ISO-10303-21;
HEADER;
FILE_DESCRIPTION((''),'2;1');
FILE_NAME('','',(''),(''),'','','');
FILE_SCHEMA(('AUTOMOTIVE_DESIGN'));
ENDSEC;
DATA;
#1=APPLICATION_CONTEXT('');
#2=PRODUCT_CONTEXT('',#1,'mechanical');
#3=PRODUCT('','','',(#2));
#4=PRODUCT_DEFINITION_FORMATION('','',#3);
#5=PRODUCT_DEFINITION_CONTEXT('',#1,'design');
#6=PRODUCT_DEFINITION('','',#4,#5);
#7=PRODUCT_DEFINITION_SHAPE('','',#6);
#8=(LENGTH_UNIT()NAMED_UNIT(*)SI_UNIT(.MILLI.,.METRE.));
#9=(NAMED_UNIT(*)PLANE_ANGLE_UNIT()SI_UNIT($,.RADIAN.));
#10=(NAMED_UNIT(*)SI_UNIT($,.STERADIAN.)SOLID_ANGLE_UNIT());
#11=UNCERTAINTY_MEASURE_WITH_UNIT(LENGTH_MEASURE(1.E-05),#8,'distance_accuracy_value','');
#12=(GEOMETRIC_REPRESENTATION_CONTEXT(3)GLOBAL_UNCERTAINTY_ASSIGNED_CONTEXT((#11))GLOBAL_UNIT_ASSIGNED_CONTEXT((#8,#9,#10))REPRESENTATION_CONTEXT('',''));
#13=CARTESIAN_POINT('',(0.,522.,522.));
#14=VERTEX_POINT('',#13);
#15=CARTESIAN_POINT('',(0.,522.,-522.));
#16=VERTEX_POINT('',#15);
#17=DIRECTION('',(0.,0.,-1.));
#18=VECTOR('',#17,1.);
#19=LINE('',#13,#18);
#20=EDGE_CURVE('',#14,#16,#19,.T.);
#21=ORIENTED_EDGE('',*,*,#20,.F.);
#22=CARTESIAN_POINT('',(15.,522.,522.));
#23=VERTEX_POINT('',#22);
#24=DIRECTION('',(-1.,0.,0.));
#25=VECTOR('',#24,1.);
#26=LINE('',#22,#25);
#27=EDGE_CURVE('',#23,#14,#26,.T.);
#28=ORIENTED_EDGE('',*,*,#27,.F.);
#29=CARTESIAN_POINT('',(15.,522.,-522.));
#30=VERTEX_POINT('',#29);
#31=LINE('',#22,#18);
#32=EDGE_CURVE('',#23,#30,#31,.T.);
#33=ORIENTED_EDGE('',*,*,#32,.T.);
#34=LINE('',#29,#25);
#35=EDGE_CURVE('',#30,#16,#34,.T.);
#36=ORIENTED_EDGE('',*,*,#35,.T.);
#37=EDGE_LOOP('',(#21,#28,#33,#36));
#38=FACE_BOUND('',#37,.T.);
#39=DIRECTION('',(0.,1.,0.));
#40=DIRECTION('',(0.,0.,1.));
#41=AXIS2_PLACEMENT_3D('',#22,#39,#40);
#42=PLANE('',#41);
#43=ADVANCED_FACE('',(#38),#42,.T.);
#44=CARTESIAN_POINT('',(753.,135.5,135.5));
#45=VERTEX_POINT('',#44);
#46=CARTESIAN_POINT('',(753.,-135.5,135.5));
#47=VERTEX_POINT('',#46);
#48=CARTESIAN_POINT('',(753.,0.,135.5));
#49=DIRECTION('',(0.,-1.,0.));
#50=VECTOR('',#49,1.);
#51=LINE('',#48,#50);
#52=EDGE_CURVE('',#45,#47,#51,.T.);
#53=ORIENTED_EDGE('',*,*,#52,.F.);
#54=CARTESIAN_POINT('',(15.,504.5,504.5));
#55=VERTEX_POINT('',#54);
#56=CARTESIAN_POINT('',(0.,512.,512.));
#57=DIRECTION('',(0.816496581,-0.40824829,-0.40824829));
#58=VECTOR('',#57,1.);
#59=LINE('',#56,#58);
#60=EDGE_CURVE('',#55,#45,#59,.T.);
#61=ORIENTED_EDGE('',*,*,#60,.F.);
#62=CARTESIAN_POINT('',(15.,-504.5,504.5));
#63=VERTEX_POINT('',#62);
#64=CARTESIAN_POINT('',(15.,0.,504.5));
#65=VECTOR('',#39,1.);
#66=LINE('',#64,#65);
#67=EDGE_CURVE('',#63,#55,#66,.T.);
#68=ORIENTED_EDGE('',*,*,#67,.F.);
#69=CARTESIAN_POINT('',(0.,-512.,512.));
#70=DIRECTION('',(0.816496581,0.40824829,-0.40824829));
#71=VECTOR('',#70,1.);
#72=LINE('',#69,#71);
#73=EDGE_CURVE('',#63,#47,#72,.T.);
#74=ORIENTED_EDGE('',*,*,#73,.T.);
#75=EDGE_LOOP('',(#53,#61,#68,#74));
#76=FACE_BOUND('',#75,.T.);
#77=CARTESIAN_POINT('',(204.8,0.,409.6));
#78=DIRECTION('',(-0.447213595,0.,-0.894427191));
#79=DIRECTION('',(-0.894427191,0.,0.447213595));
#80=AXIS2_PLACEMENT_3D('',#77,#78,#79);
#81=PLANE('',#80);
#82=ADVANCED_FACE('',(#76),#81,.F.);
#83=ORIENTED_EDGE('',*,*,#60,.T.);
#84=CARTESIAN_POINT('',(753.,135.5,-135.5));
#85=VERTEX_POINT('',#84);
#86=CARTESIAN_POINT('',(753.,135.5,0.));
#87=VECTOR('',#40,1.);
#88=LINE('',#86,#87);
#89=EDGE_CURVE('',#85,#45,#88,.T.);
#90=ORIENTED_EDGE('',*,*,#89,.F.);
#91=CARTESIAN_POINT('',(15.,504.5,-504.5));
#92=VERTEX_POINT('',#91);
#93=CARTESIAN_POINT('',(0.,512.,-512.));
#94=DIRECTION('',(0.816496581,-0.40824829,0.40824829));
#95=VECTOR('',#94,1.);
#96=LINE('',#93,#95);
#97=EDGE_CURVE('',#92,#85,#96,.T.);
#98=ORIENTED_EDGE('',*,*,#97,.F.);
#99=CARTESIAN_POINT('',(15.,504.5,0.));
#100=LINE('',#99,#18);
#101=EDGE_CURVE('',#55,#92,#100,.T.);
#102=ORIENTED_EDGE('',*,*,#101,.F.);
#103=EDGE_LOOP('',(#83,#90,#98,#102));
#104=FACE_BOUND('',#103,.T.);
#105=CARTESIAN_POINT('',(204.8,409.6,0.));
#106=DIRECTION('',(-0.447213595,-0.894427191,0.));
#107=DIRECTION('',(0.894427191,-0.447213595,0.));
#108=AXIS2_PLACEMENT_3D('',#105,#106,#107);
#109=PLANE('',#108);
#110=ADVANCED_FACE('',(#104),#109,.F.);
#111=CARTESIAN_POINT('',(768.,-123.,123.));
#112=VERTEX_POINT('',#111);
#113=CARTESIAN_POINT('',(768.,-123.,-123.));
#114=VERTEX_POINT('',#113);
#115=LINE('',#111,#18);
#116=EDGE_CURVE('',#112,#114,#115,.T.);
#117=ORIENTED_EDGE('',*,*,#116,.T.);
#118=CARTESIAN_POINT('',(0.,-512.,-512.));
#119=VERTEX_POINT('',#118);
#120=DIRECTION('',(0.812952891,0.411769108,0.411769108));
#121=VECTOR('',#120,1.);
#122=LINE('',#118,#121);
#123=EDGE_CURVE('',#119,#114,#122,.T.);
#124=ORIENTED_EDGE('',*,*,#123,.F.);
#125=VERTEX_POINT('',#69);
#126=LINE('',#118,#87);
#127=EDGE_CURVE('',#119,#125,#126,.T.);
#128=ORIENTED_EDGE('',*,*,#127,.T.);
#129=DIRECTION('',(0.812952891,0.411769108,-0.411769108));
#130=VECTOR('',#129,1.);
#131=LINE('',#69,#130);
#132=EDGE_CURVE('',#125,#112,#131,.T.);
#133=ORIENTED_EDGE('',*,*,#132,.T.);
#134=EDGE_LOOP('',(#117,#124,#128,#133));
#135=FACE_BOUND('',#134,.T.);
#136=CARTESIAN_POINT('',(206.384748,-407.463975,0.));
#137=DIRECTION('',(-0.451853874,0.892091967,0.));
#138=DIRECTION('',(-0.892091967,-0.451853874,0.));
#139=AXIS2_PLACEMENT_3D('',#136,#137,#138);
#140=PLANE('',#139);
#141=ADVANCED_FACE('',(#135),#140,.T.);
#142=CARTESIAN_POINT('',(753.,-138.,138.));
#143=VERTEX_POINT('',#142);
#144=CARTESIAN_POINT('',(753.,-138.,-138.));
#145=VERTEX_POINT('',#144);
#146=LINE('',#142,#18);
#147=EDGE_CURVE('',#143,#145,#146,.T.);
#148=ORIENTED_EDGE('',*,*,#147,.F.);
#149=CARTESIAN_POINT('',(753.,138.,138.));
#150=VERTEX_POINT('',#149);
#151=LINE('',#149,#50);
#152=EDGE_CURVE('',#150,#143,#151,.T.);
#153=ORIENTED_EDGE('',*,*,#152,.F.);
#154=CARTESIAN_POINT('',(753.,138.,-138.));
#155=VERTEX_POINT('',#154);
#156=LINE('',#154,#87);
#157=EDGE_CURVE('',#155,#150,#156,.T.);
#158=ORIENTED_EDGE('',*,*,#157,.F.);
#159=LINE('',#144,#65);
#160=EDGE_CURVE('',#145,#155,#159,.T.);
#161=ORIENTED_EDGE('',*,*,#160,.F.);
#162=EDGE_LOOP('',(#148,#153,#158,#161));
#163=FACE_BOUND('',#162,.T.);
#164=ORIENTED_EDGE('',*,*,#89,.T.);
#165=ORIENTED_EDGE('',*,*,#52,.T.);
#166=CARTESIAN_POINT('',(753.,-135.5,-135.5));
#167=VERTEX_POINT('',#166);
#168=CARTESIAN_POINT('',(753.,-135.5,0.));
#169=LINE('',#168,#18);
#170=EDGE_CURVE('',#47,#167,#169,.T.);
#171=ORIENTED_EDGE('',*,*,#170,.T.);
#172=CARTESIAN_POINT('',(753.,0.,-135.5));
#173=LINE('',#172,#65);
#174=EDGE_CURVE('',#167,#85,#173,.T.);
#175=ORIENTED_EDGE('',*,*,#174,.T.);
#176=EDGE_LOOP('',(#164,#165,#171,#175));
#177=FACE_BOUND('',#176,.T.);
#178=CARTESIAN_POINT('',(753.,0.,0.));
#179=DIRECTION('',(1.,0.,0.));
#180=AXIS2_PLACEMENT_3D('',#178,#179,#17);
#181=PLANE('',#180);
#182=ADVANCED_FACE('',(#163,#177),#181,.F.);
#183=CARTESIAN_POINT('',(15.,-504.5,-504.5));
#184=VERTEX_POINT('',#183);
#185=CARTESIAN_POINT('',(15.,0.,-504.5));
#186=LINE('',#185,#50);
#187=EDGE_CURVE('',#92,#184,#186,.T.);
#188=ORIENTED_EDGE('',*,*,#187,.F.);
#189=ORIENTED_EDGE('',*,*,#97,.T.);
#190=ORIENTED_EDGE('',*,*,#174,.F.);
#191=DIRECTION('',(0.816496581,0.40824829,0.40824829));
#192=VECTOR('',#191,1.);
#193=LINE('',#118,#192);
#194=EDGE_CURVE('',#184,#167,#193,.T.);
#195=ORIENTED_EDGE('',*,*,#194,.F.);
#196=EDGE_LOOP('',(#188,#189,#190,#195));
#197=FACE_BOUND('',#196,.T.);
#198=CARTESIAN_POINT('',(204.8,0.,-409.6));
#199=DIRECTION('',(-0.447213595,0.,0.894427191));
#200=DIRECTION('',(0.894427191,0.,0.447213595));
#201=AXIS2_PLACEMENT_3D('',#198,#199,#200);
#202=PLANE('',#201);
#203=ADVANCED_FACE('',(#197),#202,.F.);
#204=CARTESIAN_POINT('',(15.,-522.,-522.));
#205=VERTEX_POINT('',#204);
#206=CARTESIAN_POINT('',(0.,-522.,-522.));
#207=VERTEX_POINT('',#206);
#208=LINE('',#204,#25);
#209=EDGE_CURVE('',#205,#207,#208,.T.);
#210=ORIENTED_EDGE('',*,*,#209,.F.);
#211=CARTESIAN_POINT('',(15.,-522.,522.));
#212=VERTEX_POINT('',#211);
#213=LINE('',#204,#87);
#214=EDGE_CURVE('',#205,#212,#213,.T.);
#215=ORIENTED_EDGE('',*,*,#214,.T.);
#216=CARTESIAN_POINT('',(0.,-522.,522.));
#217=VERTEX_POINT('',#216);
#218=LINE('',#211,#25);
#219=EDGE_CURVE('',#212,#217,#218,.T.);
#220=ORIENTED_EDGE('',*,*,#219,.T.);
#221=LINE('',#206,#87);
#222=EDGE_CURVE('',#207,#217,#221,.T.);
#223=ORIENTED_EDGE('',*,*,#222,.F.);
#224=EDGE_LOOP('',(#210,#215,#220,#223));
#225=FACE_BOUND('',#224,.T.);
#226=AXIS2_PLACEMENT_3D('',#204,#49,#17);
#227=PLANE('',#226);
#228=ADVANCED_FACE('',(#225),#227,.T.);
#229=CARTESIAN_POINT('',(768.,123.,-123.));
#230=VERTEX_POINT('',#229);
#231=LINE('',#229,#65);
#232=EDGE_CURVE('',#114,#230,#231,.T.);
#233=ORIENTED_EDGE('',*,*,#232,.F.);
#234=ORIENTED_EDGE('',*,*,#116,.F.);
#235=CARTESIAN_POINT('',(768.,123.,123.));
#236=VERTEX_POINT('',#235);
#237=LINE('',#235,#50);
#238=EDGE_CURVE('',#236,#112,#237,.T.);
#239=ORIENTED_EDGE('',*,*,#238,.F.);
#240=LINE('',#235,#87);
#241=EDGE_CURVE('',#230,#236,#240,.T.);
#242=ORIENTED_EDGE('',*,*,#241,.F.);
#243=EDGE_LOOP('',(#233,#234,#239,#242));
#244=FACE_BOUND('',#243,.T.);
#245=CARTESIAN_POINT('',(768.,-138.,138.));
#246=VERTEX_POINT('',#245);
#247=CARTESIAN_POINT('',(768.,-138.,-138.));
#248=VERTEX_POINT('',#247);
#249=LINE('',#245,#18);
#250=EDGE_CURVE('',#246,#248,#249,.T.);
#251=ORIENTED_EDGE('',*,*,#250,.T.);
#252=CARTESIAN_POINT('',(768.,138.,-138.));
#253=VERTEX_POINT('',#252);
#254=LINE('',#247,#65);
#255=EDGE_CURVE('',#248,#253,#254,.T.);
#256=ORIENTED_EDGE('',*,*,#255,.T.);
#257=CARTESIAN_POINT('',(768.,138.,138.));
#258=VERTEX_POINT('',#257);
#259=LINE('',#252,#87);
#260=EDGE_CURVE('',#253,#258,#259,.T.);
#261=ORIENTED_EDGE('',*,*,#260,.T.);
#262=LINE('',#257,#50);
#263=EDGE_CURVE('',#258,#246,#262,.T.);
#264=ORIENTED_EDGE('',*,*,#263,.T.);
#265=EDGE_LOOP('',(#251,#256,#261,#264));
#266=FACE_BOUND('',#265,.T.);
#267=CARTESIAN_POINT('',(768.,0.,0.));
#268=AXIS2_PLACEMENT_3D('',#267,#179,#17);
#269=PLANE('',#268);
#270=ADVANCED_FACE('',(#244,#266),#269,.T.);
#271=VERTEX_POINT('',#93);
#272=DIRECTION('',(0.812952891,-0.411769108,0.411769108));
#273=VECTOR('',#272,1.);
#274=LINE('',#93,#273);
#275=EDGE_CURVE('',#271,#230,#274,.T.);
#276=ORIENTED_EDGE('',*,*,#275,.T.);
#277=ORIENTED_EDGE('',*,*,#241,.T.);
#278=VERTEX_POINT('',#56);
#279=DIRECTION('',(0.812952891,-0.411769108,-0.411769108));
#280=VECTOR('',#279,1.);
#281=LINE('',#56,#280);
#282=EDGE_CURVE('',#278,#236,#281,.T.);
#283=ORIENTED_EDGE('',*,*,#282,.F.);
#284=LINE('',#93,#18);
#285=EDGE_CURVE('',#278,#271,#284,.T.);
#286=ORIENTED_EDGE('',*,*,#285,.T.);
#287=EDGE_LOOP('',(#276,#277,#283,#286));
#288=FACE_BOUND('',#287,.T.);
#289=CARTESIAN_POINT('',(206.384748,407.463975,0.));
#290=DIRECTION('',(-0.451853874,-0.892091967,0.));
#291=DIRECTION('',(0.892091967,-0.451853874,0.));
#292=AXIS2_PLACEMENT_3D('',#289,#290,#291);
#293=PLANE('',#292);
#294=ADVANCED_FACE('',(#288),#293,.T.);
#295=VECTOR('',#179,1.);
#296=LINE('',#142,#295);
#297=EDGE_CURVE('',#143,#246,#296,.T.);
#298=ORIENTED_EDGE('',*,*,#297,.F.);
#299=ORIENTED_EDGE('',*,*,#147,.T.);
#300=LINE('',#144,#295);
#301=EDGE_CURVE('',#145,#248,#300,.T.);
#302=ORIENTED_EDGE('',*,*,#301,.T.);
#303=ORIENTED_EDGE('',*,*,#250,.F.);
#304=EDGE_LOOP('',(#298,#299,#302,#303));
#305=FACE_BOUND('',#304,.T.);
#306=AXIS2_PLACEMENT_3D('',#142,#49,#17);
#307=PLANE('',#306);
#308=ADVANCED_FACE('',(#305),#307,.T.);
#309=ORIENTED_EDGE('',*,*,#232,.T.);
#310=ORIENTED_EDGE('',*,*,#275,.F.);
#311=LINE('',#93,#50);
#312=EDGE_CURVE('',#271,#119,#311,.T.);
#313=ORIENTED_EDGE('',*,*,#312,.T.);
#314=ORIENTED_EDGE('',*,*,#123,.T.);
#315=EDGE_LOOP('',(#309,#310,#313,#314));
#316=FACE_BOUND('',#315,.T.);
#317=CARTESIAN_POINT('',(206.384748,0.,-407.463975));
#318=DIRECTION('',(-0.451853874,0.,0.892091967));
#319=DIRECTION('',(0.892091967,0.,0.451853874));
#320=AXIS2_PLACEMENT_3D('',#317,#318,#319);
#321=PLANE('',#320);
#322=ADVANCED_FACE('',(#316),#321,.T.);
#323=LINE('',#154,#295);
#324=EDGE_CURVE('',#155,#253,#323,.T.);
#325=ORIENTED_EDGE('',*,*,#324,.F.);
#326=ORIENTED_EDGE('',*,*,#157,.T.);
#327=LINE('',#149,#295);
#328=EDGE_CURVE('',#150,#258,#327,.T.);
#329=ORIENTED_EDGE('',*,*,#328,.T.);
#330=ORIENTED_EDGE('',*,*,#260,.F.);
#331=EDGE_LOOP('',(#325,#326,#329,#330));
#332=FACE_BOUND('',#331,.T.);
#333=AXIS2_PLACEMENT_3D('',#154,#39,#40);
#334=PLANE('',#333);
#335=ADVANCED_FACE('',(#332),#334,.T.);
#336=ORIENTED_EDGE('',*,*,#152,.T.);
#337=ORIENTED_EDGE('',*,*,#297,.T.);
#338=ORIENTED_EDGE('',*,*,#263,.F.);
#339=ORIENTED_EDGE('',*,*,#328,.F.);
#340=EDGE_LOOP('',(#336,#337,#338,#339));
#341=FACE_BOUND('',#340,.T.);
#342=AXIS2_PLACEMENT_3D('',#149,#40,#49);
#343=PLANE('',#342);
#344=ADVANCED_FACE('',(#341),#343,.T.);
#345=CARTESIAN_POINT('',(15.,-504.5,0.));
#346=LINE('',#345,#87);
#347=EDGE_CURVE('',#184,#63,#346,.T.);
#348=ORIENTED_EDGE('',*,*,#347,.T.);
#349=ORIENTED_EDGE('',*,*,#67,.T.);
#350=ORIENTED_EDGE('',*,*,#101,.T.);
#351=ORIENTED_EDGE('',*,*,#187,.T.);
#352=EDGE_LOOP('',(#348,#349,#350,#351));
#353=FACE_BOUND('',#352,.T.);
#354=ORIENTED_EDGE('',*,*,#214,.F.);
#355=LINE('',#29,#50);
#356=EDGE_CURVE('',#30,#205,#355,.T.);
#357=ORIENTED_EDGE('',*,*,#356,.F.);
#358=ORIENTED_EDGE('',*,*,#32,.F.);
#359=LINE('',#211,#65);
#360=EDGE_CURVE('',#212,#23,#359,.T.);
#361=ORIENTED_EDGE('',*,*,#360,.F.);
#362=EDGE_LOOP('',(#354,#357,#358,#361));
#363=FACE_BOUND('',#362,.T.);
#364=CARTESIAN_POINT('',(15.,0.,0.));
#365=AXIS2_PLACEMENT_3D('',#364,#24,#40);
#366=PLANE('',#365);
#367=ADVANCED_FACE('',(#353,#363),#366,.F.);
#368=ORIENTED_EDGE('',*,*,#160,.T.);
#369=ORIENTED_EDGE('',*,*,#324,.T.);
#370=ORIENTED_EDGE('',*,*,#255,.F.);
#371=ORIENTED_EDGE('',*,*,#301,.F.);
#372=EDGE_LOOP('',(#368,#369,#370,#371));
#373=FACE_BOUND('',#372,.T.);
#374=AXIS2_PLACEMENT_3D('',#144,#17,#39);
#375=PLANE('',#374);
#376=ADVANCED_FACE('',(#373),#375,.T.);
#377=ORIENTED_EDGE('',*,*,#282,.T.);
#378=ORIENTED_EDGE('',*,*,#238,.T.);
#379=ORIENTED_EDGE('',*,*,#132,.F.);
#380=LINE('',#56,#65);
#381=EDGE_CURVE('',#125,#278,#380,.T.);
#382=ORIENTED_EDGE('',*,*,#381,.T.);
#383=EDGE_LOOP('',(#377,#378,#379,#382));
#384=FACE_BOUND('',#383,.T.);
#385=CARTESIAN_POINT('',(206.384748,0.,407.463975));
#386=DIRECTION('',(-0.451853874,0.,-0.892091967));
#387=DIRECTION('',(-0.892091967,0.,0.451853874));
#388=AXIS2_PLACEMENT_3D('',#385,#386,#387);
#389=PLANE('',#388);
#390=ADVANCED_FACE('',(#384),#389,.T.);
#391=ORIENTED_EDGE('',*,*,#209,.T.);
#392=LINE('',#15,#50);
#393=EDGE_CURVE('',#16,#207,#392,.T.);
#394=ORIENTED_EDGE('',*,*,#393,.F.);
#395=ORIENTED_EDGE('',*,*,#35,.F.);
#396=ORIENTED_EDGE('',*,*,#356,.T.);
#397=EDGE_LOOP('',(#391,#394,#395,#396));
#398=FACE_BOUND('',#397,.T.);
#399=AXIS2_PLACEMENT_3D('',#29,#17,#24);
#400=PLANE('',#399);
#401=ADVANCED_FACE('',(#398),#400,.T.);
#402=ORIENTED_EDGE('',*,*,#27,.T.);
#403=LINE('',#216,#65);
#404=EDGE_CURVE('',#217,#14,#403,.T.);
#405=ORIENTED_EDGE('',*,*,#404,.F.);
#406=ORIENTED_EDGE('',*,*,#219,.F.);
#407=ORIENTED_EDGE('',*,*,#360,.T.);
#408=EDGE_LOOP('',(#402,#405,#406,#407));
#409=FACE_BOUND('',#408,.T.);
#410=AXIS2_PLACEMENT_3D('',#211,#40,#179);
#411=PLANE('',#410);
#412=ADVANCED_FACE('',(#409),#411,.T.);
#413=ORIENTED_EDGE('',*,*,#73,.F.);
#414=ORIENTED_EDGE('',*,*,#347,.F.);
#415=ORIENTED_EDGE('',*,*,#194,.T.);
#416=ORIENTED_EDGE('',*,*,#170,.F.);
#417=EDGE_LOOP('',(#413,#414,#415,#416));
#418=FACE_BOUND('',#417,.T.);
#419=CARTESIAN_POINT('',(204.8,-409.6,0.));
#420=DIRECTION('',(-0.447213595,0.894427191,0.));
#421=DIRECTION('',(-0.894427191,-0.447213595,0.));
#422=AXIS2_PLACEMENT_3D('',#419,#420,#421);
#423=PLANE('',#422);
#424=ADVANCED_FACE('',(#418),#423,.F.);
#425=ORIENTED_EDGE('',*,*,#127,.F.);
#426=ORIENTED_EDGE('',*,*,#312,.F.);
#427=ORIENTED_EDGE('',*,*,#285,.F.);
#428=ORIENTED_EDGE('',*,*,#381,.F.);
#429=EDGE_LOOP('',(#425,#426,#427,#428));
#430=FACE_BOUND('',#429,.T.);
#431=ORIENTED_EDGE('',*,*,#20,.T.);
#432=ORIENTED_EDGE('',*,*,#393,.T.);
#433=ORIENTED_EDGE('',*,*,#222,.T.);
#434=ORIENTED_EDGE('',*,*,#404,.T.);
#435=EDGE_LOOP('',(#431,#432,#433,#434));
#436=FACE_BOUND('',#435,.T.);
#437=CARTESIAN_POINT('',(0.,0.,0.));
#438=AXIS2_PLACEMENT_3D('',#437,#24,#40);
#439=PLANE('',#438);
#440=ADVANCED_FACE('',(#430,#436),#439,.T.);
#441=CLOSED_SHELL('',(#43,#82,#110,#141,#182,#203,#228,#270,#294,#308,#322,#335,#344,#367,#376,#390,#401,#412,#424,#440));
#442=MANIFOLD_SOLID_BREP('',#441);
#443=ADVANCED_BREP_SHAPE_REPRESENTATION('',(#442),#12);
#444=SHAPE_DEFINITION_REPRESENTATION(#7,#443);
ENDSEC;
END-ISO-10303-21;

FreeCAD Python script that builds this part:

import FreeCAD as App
import Part
import Sketcher
Q = App.Units.Quantity


def add_polygon(sketch, points):
    """Adds a closed chain of lines whose ends are joined by coincident constraints."""
    first, n = sketch.GeometryCount, len(points)
    for a, b in zip(points, points[1:] + points[:1]):
        sketch.addGeometry(Part.LineSegment(App.Vector(*a, 0), App.Vector(*b, 0)), False)
    for i in range(n):
        sketch.addConstraint(Sketcher.Constraint("Coincident", first + i, 2, first + (i + 1) % n, 1))

doc = App.newDocument("Part")
body = doc.addObject("PartDesign::Body", "Body")

# Sketch on YZ plane
sketch1 = body.newObject("Sketcher::SketchObject", "Sketch")
sketch1.AttachmentSupport = (doc.getObject("YZ_Plane"), [""])
sketch1.MapMode = "FlatFace"
add_polygon(sketch1, [(-512, 512), (-512, -512), (512, -512), (512, 512)])  # lines 0-3
sketch1.addConstraint(Sketcher.Constraint("Vertical", 0))
sketch1.addConstraint(Sketcher.Constraint("Horizontal", 1))
sketch1.addConstraint(Sketcher.Constraint("Vertical", 2))
sketch1.addConstraint(Sketcher.Constraint("Horizontal", 3))
sketch1.addConstraint(Sketcher.Constraint("Symmetric", 0, 2, 2, 2, -1, 1))
sketch1.addConstraint(Sketcher.Constraint("Equal", 3, 0))
sketch1.addConstraint(Sketcher.Constraint("DistanceX", 1, 1, 1, 2, Q("1024 mm")))

# Sketch on YZ plane
sketch2 = body.newObject("Sketcher::SketchObject", "Sketch001")
sketch2.AttachmentSupport = (doc.getObject("YZ_Plane"), [""])
sketch2.MapMode = "FlatFace"
sketch2.AttachmentOffset = App.Placement(App.Vector(0, 0, 768), App.Rotation())
add_polygon(sketch2, [(128, -128), (128, 128), (-128, 128), (-128, -128)])  # lines 0-3
sketch2.addConstraint(Sketcher.Constraint("Vertical", 0))
sketch2.addConstraint(Sketcher.Constraint("Horizontal", 1))
sketch2.addConstraint(Sketcher.Constraint("Vertical", 2))
sketch2.addConstraint(Sketcher.Constraint("Horizontal", 3))
sketch2.addConstraint(Sketcher.Constraint("Symmetric", 0, 2, 2, 2, -1, 1))
sketch2.addConstraint(Sketcher.Constraint("Equal", 3, 0))
sketch2.addConstraint(Sketcher.Constraint("DistanceX", 1, 2, 1, 1, Q("256 mm")))

additiveloft = body.newObject("PartDesign::AdditiveLoft", "AdditiveLoft")
additiveloft.Profile = sketch1
additiveloft.Sections = [sketch2]

# Sketch on YZ plane
sketch3 = body.newObject("Sketcher::SketchObject", "Sketch002")
sketch3.AttachmentSupport = (doc.getObject("YZ_Plane"), [""])
sketch3.MapMode = "FlatFace"
sketch3.AttachmentOffset = App.Placement(App.Vector(0, 0, 768), App.Rotation())
add_polygon(sketch3, [(138, 138), (-138, 138), (-138, -138), (138, -138)])  # lines 0-3
sketch3.addConstraint(Sketcher.Constraint("Horizontal", 0))
sketch3.addConstraint(Sketcher.Constraint("Vertical", 1))
sketch3.addConstraint(Sketcher.Constraint("Horizontal", 2))
sketch3.addConstraint(Sketcher.Constraint("Vertical", 3))
sketch3.addConstraint(Sketcher.Constraint("Symmetric", 0, 2, 2, 2, -1, 1))
sketch3.addConstraint(Sketcher.Constraint("Equal", 2, 1))
sketch3.addConstraint(Sketcher.Constraint("DistanceX", 0, 2, 0, 1, Q("276 mm")))
pad1 = body.newObject("PartDesign::Pad", "Pad")
pad1.Profile = sketch3
pad1.Length = 15
pad1.Reversed = True

# Sketch on YZ plane
sketch4 = body.newObject("Sketcher::SketchObject", "Sketch003")
sketch4.AttachmentSupport = (doc.getObject("YZ_Plane"), [""])
sketch4.MapMode = "FlatFace"
add_polygon(sketch4, [(522, -522), (-522, -522), (-522, 522), (522, 522)])  # lines 0-3
sketch4.addConstraint(Sketcher.Constraint("Horizontal", 0))
sketch4.addConstraint(Sketcher.Constraint("Vertical", 1))
sketch4.addConstraint(Sketcher.Constraint("Horizontal", 2))
sketch4.addConstraint(Sketcher.Constraint("Vertical", 3))
sketch4.addConstraint(Sketcher.Constraint("Symmetric", 0, 2, 2, 2, -1, 1))
sketch4.addConstraint(Sketcher.Constraint("Equal", 2, 1))
sketch4.addConstraint(Sketcher.Constraint("DistanceX", 0, 2, 0, 1, Q("1044 mm")))
pad2 = body.newObject("PartDesign::Pad", "Pad001")
pad2.Profile = sketch4
pad2.Length = 15

# Sketch on YZ plane
sketch5 = body.newObject("Sketcher::SketchObject", "Sketch004")
sketch5.AttachmentSupport = (doc.getObject("YZ_Plane"), [""])
sketch5.MapMode = "FlatFace"
add_polygon(sketch5, [(512, 512), (512, -512), (-512, -512), (-512, 512)])  # lines 0-3
sketch5.addConstraint(Sketcher.Constraint("Vertical", 0))
sketch5.addConstraint(Sketcher.Constraint("Horizontal", 1))
sketch5.addConstraint(Sketcher.Constraint("Vertical", 2))
sketch5.addConstraint(Sketcher.Constraint("Horizontal", 3))
sketch5.addConstraint(Sketcher.Constraint("Symmetric", 0, 2, 2, 2, -1, 1))
sketch5.addConstraint(Sketcher.Constraint("Equal", 3, 0))
sketch5.addConstraint(Sketcher.Constraint("DistanceX", 1, 2, 1, 1, Q("1024 mm")))

# Sketch on YZ plane
sketch6 = body.newObject("Sketcher::SketchObject", "Sketch005")
sketch6.AttachmentSupport = (doc.getObject("YZ_Plane"), [""])
sketch6.MapMode = "FlatFace"
sketch6.AttachmentOffset = App.Placement(App.Vector(0, 0, 768), App.Rotation())
add_polygon(sketch6, [(123, -123), (123, 123), (-123, 123), (-123, -123)])  # lines 0-3
sketch6.addConstraint(Sketcher.Constraint("Vertical", 0))
sketch6.addConstraint(Sketcher.Constraint("Horizontal", 1))
sketch6.addConstraint(Sketcher.Constraint("Vertical", 2))
sketch6.addConstraint(Sketcher.Constraint("Horizontal", 3))
sketch6.addConstraint(Sketcher.Constraint("Symmetric", 0, 2, 2, 2, -1, 1))
sketch6.addConstraint(Sketcher.Constraint("Equal", 3, 0))
sketch6.addConstraint(Sketcher.Constraint("DistanceX", 1, 2, 1, 1, Q("246 mm")))

subtractiveloft = body.newObject("PartDesign::SubtractiveLoft", "SubtractiveLoft")
subtractiveloft.Profile = sketch5
subtractiveloft.Sections = [sketch6]

doc.recompute()
